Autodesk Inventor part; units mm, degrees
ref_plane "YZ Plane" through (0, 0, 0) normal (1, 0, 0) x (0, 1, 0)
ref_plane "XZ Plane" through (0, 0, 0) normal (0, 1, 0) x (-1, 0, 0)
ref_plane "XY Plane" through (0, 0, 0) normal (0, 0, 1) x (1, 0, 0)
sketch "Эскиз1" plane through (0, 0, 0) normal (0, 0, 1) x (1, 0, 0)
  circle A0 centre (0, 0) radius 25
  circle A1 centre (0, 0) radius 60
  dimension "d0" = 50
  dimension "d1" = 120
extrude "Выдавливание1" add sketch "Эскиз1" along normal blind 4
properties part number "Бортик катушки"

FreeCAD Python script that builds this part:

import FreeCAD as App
import Part
import Sketcher

V = App.Vector

doc = App.newDocument("Part")
body = doc.addObject("PartDesign::Body", "Body")

sketch1 = body.newObject("Sketcher::SketchObject", "Sketch")
sketch1.AttachmentSupport = (doc.getObject("XY_Plane"), [""])
sketch1.MapMode = "FlatFace"
sketch1.addGeometry([
    Part.Circle(V(0, 0, 0), V(0, 0, 1), 60),
    Part.Circle(V(0, 0, 0), V(0, 0, 1), 25),
], False)
sketch1.addConstraint([
    Sketcher.Constraint("Coincident", 0, 3, -1, 1),
    Sketcher.Constraint("Coincident", 1, 3, -1, 1),
    Sketcher.Constraint("Diameter", 0, 120.0),
    Sketcher.Constraint("Diameter", 1, 50.0),
])
pad1 = body.newObject("PartDesign::Pad", "Pad")
pad1.Profile = sketch1
pad1.Length = 4

doc.recompute()
